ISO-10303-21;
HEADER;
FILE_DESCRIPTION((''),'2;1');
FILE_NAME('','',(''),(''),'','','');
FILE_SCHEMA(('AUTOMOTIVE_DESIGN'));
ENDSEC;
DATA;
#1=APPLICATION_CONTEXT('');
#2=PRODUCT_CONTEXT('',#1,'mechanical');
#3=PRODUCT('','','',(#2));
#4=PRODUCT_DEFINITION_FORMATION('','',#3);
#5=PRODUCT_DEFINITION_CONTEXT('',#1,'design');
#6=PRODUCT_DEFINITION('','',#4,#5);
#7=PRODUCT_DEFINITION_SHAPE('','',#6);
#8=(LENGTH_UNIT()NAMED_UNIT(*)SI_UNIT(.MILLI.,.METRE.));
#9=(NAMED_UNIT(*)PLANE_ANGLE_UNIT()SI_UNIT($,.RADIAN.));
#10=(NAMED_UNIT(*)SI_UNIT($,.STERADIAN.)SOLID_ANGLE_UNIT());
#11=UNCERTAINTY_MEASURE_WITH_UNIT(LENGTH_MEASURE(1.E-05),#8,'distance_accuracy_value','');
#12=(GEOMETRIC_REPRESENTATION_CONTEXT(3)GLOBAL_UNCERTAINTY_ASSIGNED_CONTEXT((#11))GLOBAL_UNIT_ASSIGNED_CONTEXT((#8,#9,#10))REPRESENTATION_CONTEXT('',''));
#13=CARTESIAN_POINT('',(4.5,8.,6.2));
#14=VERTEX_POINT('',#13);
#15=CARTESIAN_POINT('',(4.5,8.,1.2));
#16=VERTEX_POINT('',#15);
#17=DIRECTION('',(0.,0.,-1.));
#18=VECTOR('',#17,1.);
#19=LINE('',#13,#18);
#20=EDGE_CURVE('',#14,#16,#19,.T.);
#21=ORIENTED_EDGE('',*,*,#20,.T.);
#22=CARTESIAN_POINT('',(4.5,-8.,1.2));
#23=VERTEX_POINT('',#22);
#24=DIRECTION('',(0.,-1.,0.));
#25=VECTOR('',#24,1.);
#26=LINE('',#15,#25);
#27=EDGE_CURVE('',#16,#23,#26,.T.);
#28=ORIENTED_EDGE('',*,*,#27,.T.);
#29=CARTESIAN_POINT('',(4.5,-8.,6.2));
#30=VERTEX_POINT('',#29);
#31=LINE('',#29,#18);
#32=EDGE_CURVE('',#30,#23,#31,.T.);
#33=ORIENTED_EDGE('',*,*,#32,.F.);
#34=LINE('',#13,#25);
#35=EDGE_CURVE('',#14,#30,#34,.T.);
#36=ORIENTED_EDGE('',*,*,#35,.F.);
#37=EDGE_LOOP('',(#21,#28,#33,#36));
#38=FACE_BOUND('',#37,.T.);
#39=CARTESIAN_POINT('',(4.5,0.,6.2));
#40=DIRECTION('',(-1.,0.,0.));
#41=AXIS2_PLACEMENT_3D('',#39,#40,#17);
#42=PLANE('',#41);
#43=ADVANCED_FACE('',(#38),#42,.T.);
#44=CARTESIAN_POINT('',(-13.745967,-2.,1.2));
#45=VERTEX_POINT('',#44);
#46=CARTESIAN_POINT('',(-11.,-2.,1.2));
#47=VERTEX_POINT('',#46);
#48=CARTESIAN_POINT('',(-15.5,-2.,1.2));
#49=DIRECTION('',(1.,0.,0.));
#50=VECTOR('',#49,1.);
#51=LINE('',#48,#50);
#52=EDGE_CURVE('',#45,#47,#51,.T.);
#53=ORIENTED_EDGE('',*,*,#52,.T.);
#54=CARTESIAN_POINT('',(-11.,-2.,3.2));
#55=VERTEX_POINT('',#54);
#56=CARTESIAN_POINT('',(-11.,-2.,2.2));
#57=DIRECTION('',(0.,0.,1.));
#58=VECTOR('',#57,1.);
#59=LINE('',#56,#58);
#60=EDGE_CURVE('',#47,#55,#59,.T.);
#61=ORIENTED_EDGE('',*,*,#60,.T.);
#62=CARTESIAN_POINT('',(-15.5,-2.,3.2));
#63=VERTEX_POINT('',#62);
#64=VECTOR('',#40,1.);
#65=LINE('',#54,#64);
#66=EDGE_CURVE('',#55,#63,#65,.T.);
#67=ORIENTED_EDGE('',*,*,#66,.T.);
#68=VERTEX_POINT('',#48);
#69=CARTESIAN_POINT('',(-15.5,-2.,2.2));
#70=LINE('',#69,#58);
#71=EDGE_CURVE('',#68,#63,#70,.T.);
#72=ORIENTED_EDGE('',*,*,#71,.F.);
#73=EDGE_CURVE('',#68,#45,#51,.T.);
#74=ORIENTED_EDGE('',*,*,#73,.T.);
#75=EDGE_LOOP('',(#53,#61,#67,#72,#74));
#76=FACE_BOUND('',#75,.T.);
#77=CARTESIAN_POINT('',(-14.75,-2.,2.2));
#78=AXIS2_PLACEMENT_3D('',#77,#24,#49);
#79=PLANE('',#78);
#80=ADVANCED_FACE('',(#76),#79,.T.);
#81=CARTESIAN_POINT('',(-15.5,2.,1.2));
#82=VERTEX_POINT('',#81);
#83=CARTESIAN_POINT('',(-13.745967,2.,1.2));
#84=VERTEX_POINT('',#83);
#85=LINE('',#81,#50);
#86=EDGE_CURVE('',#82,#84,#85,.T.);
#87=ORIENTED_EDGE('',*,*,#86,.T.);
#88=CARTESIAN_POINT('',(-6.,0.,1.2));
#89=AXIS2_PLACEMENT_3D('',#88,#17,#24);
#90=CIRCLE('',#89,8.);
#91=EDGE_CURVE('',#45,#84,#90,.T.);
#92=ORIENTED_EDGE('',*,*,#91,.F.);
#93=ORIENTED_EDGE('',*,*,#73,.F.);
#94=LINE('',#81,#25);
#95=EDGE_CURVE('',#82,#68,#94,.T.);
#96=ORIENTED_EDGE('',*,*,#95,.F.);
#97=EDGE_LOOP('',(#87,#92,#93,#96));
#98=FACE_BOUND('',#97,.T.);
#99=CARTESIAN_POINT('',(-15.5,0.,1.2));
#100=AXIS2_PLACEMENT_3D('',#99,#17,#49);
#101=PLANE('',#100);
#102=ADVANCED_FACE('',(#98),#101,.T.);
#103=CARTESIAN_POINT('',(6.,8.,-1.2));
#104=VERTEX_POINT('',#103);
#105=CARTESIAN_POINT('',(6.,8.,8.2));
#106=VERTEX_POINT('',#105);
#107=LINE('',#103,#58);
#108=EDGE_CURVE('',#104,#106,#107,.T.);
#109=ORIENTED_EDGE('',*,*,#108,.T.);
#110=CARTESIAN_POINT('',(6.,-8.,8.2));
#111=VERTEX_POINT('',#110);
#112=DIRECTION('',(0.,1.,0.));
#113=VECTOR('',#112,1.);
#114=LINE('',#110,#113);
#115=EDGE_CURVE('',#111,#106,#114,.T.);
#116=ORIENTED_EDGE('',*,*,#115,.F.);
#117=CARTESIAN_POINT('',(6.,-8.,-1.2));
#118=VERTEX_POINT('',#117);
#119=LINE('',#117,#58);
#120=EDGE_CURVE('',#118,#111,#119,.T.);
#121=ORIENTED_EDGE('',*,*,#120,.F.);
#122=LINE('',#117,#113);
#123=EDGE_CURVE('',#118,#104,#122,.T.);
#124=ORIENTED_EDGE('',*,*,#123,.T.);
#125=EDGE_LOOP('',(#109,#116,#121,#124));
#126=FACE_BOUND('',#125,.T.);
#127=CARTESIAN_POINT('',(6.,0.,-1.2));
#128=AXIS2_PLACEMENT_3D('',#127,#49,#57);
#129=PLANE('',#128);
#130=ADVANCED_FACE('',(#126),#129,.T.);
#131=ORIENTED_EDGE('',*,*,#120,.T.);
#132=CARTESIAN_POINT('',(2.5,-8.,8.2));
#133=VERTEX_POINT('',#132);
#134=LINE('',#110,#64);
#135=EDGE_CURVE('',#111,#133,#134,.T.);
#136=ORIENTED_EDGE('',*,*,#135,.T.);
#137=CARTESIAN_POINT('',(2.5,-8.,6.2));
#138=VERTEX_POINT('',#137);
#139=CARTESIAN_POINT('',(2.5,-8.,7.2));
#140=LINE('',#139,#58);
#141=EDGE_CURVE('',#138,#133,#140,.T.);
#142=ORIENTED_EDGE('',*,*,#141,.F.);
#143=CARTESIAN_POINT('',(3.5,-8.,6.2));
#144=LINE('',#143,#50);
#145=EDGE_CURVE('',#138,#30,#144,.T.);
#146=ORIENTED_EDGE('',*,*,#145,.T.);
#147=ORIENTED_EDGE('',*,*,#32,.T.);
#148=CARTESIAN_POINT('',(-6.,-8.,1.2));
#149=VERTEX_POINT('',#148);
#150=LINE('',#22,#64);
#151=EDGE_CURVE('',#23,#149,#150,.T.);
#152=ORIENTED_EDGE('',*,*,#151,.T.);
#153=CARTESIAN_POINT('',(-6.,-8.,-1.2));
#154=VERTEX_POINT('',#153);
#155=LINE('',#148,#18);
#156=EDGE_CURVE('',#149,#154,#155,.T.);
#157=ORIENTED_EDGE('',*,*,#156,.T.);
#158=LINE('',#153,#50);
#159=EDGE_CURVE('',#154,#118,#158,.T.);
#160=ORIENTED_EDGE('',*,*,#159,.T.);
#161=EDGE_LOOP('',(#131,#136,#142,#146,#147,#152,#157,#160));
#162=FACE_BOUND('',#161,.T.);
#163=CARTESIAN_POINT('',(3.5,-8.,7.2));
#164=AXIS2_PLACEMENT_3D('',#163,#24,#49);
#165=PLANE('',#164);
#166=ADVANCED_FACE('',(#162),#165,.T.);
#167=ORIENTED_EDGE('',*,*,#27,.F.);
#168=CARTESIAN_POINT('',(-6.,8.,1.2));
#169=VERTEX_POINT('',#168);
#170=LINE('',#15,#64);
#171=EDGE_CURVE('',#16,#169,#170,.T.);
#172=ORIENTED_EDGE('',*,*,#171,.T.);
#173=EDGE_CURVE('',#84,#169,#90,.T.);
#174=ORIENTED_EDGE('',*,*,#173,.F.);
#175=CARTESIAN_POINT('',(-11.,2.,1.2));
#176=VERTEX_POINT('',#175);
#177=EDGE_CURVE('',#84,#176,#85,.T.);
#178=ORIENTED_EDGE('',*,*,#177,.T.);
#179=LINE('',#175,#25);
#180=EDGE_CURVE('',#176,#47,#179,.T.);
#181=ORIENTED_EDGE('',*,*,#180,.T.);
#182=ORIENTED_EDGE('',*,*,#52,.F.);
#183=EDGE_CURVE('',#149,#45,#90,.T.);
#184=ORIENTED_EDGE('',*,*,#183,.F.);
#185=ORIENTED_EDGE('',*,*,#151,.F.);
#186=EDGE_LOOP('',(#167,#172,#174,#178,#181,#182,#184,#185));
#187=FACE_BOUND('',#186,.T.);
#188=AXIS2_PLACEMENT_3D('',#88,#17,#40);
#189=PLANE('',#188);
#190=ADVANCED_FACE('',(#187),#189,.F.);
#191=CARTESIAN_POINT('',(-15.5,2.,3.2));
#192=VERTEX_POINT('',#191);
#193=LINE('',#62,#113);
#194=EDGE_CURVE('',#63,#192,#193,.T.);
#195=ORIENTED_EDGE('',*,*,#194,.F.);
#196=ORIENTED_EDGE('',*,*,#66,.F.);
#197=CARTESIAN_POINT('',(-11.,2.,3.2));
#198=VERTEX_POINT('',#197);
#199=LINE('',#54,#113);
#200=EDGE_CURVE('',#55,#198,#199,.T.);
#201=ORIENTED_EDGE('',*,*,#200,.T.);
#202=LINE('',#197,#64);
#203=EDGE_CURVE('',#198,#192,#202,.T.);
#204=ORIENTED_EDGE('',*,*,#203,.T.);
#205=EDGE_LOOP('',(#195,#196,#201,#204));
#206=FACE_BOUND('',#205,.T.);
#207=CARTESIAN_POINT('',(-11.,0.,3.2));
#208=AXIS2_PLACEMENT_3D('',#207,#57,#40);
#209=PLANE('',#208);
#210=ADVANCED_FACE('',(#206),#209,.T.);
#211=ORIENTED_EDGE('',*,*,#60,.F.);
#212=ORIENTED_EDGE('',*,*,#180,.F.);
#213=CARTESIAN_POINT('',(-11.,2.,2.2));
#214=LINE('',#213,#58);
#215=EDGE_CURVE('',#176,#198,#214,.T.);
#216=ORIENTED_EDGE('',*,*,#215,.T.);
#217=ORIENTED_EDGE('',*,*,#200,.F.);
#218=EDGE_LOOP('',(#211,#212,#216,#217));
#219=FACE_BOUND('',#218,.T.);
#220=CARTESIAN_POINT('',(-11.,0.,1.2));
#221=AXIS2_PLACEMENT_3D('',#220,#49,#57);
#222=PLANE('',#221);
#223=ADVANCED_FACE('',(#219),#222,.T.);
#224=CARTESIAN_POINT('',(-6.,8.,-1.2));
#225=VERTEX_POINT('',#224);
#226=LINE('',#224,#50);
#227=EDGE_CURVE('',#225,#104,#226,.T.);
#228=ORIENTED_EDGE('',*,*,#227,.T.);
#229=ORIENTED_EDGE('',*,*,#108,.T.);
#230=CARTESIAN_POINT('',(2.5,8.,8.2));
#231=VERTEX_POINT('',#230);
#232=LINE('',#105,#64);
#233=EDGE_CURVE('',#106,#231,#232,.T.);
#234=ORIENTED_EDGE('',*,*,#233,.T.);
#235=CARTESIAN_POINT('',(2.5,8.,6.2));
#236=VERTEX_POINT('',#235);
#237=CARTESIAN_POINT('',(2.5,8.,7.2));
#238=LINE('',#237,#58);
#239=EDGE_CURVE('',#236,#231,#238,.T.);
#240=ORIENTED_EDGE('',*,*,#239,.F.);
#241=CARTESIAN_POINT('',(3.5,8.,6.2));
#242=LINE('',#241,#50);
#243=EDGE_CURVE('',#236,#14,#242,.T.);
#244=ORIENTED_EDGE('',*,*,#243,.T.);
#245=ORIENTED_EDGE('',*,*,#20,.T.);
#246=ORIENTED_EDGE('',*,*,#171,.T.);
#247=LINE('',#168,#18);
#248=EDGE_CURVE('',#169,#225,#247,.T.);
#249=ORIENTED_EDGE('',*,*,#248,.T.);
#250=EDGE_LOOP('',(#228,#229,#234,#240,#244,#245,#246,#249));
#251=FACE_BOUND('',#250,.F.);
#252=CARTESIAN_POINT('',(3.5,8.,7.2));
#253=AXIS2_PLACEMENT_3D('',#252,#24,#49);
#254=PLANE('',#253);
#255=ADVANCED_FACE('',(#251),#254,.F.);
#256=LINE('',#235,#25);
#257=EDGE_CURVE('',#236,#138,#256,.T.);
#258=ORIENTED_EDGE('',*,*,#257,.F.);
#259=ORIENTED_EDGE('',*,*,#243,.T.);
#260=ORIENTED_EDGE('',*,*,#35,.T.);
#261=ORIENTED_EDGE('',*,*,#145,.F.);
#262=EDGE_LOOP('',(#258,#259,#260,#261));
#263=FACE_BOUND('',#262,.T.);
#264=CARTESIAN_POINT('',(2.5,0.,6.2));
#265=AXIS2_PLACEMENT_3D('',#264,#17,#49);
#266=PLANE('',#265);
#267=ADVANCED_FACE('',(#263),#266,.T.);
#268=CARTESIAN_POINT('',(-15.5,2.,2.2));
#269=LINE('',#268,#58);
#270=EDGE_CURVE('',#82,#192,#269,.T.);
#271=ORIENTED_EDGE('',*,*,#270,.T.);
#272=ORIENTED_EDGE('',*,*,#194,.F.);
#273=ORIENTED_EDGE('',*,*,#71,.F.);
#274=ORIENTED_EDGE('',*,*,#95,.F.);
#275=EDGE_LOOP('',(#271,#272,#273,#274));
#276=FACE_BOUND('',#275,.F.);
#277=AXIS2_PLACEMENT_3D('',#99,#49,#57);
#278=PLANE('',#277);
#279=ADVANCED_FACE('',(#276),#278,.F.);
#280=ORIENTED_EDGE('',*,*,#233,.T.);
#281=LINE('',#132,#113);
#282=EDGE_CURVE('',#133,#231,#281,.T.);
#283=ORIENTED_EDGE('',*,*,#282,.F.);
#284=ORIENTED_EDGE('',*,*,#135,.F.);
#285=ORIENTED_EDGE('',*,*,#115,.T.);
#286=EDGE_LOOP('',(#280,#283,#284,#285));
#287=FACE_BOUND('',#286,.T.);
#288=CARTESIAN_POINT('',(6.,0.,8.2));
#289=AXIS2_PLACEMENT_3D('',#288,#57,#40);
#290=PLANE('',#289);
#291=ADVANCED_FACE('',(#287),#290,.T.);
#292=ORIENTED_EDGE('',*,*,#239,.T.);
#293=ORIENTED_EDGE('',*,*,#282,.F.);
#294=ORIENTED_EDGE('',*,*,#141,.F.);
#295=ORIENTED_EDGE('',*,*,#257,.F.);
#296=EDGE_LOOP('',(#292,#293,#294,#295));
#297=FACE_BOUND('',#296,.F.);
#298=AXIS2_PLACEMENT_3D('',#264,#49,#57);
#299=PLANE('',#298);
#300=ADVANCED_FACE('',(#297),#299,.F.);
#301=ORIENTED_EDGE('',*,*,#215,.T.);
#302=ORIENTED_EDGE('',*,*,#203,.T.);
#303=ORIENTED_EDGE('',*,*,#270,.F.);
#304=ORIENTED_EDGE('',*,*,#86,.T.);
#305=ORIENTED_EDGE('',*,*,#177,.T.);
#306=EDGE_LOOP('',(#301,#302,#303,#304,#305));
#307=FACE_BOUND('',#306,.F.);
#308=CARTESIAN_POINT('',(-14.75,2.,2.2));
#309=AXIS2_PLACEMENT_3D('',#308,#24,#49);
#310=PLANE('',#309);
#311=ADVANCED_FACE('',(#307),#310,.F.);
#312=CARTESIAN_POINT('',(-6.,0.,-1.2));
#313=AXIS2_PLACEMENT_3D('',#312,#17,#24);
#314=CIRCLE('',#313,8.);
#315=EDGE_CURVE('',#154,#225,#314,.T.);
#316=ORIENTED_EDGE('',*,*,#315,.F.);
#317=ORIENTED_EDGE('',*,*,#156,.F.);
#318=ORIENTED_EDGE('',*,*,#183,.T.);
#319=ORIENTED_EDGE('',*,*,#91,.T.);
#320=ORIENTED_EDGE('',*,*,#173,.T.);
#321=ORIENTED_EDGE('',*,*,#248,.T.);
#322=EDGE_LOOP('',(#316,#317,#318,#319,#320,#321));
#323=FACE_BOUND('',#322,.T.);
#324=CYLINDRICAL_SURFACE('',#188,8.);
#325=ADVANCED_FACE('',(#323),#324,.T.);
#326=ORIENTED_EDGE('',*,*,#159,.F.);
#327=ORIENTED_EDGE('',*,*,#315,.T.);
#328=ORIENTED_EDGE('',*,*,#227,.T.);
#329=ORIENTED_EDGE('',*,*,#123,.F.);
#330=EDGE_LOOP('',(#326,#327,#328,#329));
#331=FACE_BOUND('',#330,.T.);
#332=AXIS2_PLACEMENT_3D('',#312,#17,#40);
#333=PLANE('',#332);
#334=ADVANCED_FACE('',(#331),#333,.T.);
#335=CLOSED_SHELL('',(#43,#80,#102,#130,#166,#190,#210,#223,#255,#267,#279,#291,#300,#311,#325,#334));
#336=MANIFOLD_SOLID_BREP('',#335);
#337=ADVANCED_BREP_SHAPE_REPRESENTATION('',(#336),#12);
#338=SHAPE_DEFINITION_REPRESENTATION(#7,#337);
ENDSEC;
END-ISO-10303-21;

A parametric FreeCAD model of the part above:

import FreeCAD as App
import Part
import Sketcher
from FreeCAD import Vector
Q = App.Units.Quantity

doc = App.newDocument("Part")
body = doc.addObject("PartDesign::Body", "Body")

# Sketch on XZ plane
sketch1 = doc.addObject("Sketcher::SketchObject", "Sketch")
body.addObject(sketch1)
sketch1.AttachmentSupport = (doc.XZ_Plane, [""])
sketch1.MapMode = "FlatFace"
sketch1.addGeometry(Part.LineSegment(Vector(2.5, 8.2, 0), Vector(2.5, 6.2, 0)), False)
sketch1.addGeometry(Part.LineSegment(Vector(2.5, 6.2, 0), Vector(4.5, 6.2, 0)), False)
sketch1.addGeometry(Part.LineSegment(Vector(4.5, 6.2, 0), Vector(4.5, 1.2, 0)), False)
sketch1.addGeometry(Part.LineSegment(Vector(4.5, 1.2, 0), Vector(-6, 1.2, 0)), False)
sketch1.addGeometry(Part.LineSegment(Vector(-6, 1.2, 0), Vector(-6, -1.2, 0)), False)
sketch1.addGeometry(Part.LineSegment(Vector(-6, -1.2, 0), Vector(6, -1.2, 0)), False)
sketch1.addGeometry(Part.LineSegment(Vector(6, -1.2, 0), Vector(6, 8.2, 0)), False)
sketch1.addGeometry(Part.LineSegment(Vector(6, 8.2, 0), Vector(2.5, 8.2, 0)), False)
sketch1.addConstraint(Sketcher.Constraint("Coincident", 0, 2, 1, 1))
sketch1.addConstraint(Sketcher.Constraint("Coincident", 1, 2, 2, 1))
sketch1.addConstraint(Sketcher.Constraint("Coincident", 2, 2, 3, 1))
sketch1.addConstraint(Sketcher.Constraint("Coincident", 3, 2, 4, 1))
sketch1.addConstraint(Sketcher.Constraint("Coincident", 4, 2, 5, 1))
sketch1.addConstraint(Sketcher.Constraint("Coincident", 5, 2, 6, 1))
sketch1.addConstraint(Sketcher.Constraint("Coincident", 6, 2, 7, 1))
sketch1.addConstraint(Sketcher.Constraint("Coincident", 7, 2, 0, 1))
sketch1.addConstraint(Sketcher.Constraint("Vertical", 0))
sketch1.addConstraint(Sketcher.Constraint("Horizontal", 1))
sketch1.addConstraint(Sketcher.Constraint("Vertical", 2))
sketch1.addConstraint(Sketcher.Constraint("Horizontal", 3))
sketch1.addConstraint(Sketcher.Constraint("Vertical", 4))
sketch1.addConstraint(Sketcher.Constraint("Horizontal", 5))
sketch1.addConstraint(Sketcher.Constraint("Vertical", 6))
sketch1.addConstraint(Sketcher.Constraint("Horizontal", 7))
sketch1.addConstraint(Sketcher.Constraint("Symmetric", 3, 2, 5, 2, -1, 1))
sketch1.addConstraint(Sketcher.Constraint("Equal", 1, 0))
sketch1.addConstraint(Sketcher.Constraint("DistanceX", 1, 1, 1, 2, Q("2 mm")))
sketch1.addConstraint(Sketcher.Constraint("DistanceX", 5, 1, 5, 2, Q("12 mm")))
sketch1.addConstraint(Sketcher.Constraint("DistanceY", 2, 2, 2, 1, Q("5 mm")))
sketch1.addConstraint(Sketcher.Constraint("DistanceX", 3, 2, 3, 1, Q("10.5 mm")))
sketch1.addConstraint(Sketcher.Constraint("DistanceY", 4, 2, 4, 1, Q("2.4 mm")))
pad1 = doc.addObject("PartDesign::Pad", "Pad")
body.addObject(pad1)
pad1.Profile = sketch1
pad1.Length = 16
pad1.Midplane = True

# Sketch on XZ plane
sketch2 = doc.addObject("Sketcher::SketchObject", "Sketch001")
body.addObject(sketch2)
sketch2.AttachmentSupport = (doc.XZ_Plane, [""])
sketch2.MapMode = "FlatFace"
sketch2.addGeometry(Part.LineSegment(Vector(-14, -1.2, 0), Vector(-6, -1.2, 0)), False)
sketch2.addGeometry(Part.LineSegment(Vector(-6, -1.2, 0), Vector(-6, 1.2, 0)), False)
sketch2.addGeometry(Part.LineSegment(Vector(-6, 1.2, 0), Vector(-14, 1.2, 0)), False)
sketch2.addGeometry(Part.LineSegment(Vector(-14, 1.2, 0), Vector(-14, -1.2, 0)), False)
sketch2.addGeometry(Part.LineSegment(Vector(-6, -1.2, 0), Vector(-6, 1.2, 0)), True)  # axis
sketch2.addConstraint(Sketcher.Constraint("Coincident", 0, 2, 1, 1))
sketch2.addConstraint(Sketcher.Constraint("Coincident", 1, 2, 2, 1))
sketch2.addConstraint(Sketcher.Constraint("Coincident", 2, 2, 3, 1))
sketch2.addConstraint(Sketcher.Constraint("Coincident", 3, 2, 0, 1))
sketch2.addConstraint(Sketcher.Constraint("Horizontal", 0))
sketch2.addConstraint(Sketcher.Constraint("Vertical", 1))
sketch2.addConstraint(Sketcher.Constraint("Horizontal", 2))
sketch2.addConstraint(Sketcher.Constraint("Vertical", 3))
sketch2.addConstraint(Sketcher.Constraint("Vertical", 4))
sketch2.addConstraint(Sketcher.Constraint("Coincident", 4, 1, 0, 2))
sketch2.addConstraint(Sketcher.Constraint("Horizontal", 2, 2, 4, 2))
sketch2.addConstraint(Sketcher.Constraint("DistanceX", 0, 1, 0, 2, Q("8 mm")))
sketch2.addConstraint(Sketcher.Constraint("DistanceY", 1, 1, 1, 2, Q("2.4 mm")))
sketch2.addConstraint(Sketcher.Constraint("DistanceX", 0, 2, -1, 1, Q("6 mm")))
sketch2.addConstraint(Sketcher.Constraint("DistanceY", 0, 2, -1, 1, Q("1.2 mm")))
revolution = doc.addObject("PartDesign::Revolution", "Revolution")
body.addObject(revolution)
revolution.Profile = sketch2
revolution.ReferenceAxis = (sketch2, ["Axis0"])
revolution.Angle = 90

# Sketch on XZ plane
sketch3 = doc.addObject("Sketcher::SketchObject", "Sketch002")
body.addObject(sketch3)
sketch3.AttachmentSupport = (doc.XZ_Plane, [""])
sketch3.MapMode = "FlatFace"
sketch3.addGeometry(Part.LineSegment(Vector(-14, -1.2, 0), Vector(-6, -1.2, 0)), False)
sketch3.addGeometry(Part.LineSegment(Vector(-6, -1.2, 0), Vector(-6, 1.2, 0)), False)
sketch3.addGeometry(Part.LineSegment(Vector(-6, 1.2, 0), Vector(-14, 1.2, 0)), False)
sketch3.addGeometry(Part.LineSegment(Vector(-14, 1.2, 0), Vector(-14, -1.2, 0)), False)
sketch3.addGeometry(Part.LineSegment(Vector(-6, 1.2, 0), Vector(-6, -1.2, 0)), True)  # axis
sketch3.addConstraint(Sketcher.Constraint("Coincident", 0, 2, 1, 1))
sketch3.addConstraint(Sketcher.Constraint("Coincident", 1, 2, 2, 1))
sketch3.addConstraint(Sketcher.Constraint("Coincident", 2, 2, 3, 1))
sketch3.addConstraint(Sketcher.Constraint("Coincident", 3, 2, 0, 1))
sketch3.addConstraint(Sketcher.Constraint("Horizontal", 0))
sketch3.addConstraint(Sketcher.Constraint("Vertical", 1))
sketch3.addConstraint(Sketcher.Constraint("Horizontal", 2))
sketch3.addConstraint(Sketcher.Constraint("Vertical", 3))
sketch3.addConstraint(Sketcher.Constraint("Vertical", 4))
sketch3.addConstraint(Sketcher.Constraint("Coincident", 4, 1, 1, 2))
sketch3.addConstraint(Sketcher.Constraint("Horizontal", 3, 2, 4, 2))
sketch3.addConstraint(Sketcher.Constraint("DistanceX", 0, 1, 0, 2, Q("8 mm")))
sketch3.addConstraint(Sketcher.Constraint("DistanceY", 1, 1, 1, 2, Q("2.4 mm")))
sketch3.addConstraint(Sketcher.Constraint("DistanceX", 0, 2, -1, 1, Q("6 mm")))
sketch3.addConstraint(Sketcher.Constraint("DistanceY", 0, 2, -1, 1, Q("1.2 mm")))
revolution2 = doc.addObject("PartDesign::Revolution", "Revolution001")
body.addObject(revolution2)
revolution2.Profile = sketch3
revolution2.ReferenceAxis = (sketch3, ["Axis0"])
revolution2.Angle = 90

# Sketch on XZ plane
sketch4 = doc.addObject("Sketcher::SketchObject", "Sketch003")
body.addObject(sketch4)
sketch4.AttachmentSupport = (doc.XZ_Plane, [""])
sketch4.MapMode = "FlatFace"
sketch4.addGeometry(Part.LineSegment(Vector(-15.5, 3.2, 0), Vector(-15.5, 1.2, 0)), False)
sketch4.addGeometry(Part.LineSegment(Vector(-15.5, 1.2, 0), Vector(-11, 1.2, 0)), False)
sketch4.addGeometry(Part.LineSegment(Vector(-11, 1.2, 0), Vector(-11, 3.2, 0)), False)
sketch4.addGeometry(Part.LineSegment(Vector(-11, 3.2, 0), Vector(-15.5, 3.2, 0)), False)
sketch4.addConstraint(Sketcher.Constraint("Coincident", 0, 2, 1, 1))
sketch4.addConstraint(Sketcher.Constraint("Coincident", 1, 2, 2, 1))
sketch4.addConstraint(Sketcher.Constraint("Coincident", 2, 2, 3, 1))
sketch4.addConstraint(Sketcher.Constraint("Coincident", 3, 2, 0, 1))
sketch4.addConstraint(Sketcher.Constraint("Vertical", 0))
sketch4.addConstraint(Sketcher.Constraint("Horizontal", 1))
sketch4.addConstraint(Sketcher.Constraint("Vertical", 2))
sketch4.addConstraint(Sketcher.Constraint("Horizontal", 3))
sketch4.addConstraint(Sketcher.Constraint("DistanceY", 0, 2, 0, 1, Q("2 mm")))
sketch4.addConstraint(Sketcher.Constraint("DistanceX", 1, 1, 1, 2, Q("4.5 mm")))
sketch4.addConstraint(Sketcher.Constraint("DistanceX", 1, 2, -1, 1, Q("11 mm")))
sketch4.addConstraint(Sketcher.Constraint("DistanceY", -1, 1, 0, 2, Q("1.2 mm")))
pad2 = doc.addObject("PartDesign::Pad", "Pad001")
body.addObject(pad2)
pad2.Profile = sketch4
pad2.Length = 4
pad2.Midplane = True

doc.recompute()
